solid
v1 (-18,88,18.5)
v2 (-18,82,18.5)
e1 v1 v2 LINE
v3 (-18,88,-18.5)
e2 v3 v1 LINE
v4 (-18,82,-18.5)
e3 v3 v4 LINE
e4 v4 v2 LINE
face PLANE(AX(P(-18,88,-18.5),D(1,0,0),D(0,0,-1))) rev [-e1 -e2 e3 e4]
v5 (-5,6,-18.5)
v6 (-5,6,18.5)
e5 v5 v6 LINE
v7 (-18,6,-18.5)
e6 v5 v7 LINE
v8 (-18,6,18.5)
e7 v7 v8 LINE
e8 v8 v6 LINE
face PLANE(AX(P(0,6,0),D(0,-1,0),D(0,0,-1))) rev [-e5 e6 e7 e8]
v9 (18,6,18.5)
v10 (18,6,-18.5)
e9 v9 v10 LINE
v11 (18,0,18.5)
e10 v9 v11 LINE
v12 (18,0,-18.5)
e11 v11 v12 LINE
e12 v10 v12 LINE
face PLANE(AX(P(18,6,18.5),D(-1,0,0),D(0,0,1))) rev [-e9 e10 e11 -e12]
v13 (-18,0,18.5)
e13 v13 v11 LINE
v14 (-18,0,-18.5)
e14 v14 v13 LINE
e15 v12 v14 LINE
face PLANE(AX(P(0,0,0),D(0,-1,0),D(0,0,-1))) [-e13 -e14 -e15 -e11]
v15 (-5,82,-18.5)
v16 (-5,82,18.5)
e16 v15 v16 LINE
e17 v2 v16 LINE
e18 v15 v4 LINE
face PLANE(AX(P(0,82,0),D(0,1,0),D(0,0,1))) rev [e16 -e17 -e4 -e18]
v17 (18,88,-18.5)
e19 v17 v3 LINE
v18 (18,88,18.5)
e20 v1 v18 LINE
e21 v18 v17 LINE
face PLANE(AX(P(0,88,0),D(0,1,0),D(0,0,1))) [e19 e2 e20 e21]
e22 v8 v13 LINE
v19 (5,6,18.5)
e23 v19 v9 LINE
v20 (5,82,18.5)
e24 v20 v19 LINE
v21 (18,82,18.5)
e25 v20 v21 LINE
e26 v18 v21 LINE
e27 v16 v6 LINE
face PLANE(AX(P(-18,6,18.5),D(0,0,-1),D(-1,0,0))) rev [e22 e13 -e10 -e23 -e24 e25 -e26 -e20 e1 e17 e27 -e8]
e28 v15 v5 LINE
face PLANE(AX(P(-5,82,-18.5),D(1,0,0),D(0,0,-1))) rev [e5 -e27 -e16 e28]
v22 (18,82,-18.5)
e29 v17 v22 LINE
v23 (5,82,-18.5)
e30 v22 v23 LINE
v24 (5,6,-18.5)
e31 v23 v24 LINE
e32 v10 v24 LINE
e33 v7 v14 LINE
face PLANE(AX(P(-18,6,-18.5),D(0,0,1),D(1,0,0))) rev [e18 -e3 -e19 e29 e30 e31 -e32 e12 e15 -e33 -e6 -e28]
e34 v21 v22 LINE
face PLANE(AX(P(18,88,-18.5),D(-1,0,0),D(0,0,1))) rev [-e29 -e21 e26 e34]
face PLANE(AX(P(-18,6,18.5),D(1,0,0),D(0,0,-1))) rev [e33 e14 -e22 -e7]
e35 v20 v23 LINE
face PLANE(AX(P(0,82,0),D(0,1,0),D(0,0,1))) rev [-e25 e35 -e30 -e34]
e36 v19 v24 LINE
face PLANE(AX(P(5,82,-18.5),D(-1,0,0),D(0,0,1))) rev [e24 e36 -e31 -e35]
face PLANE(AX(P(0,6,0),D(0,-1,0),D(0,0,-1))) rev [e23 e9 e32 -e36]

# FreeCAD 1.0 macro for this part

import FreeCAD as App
import Part
import Sketcher

V = App.Vector

doc = App.newDocument("Part")
body = doc.addObject("PartDesign::Body", "Body")

sketch1 = body.newObject("Sketcher::SketchObject", "Sketch")
sketch1.AttachmentSupport = (doc.getObject("XZ_Plane"), [""])
sketch1.MapMode = "FlatFace"
sketch1.addGeometry([
    Part.LineSegment(V(-18, -18.5, 0), V(-18, 18.5, 0)),
    Part.LineSegment(V(-18, 18.5, 0), V(18, 18.5, 0)),
    Part.LineSegment(V(18, 18.5, 0), V(18, -18.5, 0)),
    Part.LineSegment(V(18, -18.5, 0), V(-18, -18.5, 0)),
], False)
sketch1.addConstraint([
    Sketcher.Constraint("Coincident", 0, 2, 1, 1),
    Sketcher.Constraint("Coincident", 1, 2, 2, 1),
    Sketcher.Constraint("Coincident", 2, 2, 3, 1),
    Sketcher.Constraint("Coincident", 3, 2, 0, 1),
    Sketcher.Constraint("Vertical", 0),
    Sketcher.Constraint("Horizontal", 1),
    Sketcher.Constraint("Vertical", 2),
    Sketcher.Constraint("Horizontal", 3),
    Sketcher.Constraint("Symmetric", 0, 2, 2, 2, -1, 1),
    Sketcher.Constraint("DistanceX", 1, 1, 1, 2, 36.0),
    Sketcher.Constraint("DistanceY", 0, 1, 0, 2, 37.0),
])
pad1 = body.newObject("PartDesign::Pad", "Pad")
pad1.Profile = sketch1
pad1.Length = 6
pad1.Reversed = True

sketch2 = body.newObject("Sketcher::SketchObject", "Sketch001")
sketch2.AttachmentSupport = (doc.getObject("XZ_Plane"), [""])
sketch2.MapMode = "FlatFace"
sketch2.AttachmentOffset = App.Placement(V(0, 0, -6), App.Rotation())
sketch2.addGeometry([
    Part.LineSegment(V(-5, -18.5, 0), V(-5, 18.5, 0)),
    Part.LineSegment(V(-5, 18.5, 0), V(5, 18.5, 0)),
    Part.LineSegment(V(5, 18.5, 0), V(5, -18.5, 0)),
    Part.LineSegment(V(5, -18.5, 0), V(-5, -18.5, 0)),
], False)
sketch2.addConstraint([
    Sketcher.Constraint("Coincident", 0, 2, 1, 1),
    Sketcher.Constraint("Coincident", 1, 2, 2, 1),
    Sketcher.Constraint("Coincident", 2, 2, 3, 1),
    Sketcher.Constraint("Coincident", 3, 2, 0, 1),
    Sketcher.Constraint("Vertical", 0),
    Sketcher.Constraint("Horizontal", 1),
    Sketcher.Constraint("Vertical", 2),
    Sketcher.Constraint("Horizontal", 3),
    Sketcher.Constraint("Symmetric", 0, 2, 2, 2, -1, 1),
    Sketcher.Constraint("DistanceX", 1, 1, 1, 2, 10.0),
    Sketcher.Constraint("DistanceY", 0, 1, 0, 2, 37.0),
])
pad2 = body.newObject("PartDesign::Pad", "Pad001")
pad2.Profile = sketch2
pad2.Length = 76
pad2.Reversed = True

sketch3 = body.newObject("Sketcher::SketchObject", "Sketch002")
sketch3.AttachmentSupport = (doc.getObject("XZ_Plane"), [""])
sketch3.MapMode = "FlatFace"
sketch3.AttachmentOffset = App.Placement(V(0, 0, -82), App.Rotation())
sketch3.addGeometry([
    Part.LineSegment(V(-18, -18.5, 0), V(-18, 18.5, 0)),
    Part.LineSegment(V(-18, 18.5, 0), V(18, 18.5, 0)),
    Part.LineSegment(V(18, 18.5, 0), V(18, -18.5, 0)),
    Part.LineSegment(V(18, -18.5, 0), V(-18, -18.5, 0)),
], False)
sketch3.addConstraint([
    Sketcher.Constraint("Coincident", 0, 2, 1, 1),
    Sketcher.Constraint("Coincident", 1, 2, 2, 1),
    Sketcher.Constraint("Coincident", 2, 2, 3, 1),
    Sketcher.Constraint("Coincident", 3, 2, 0, 1),
    Sketcher.Constraint("Vertical", 0),
    Sketcher.Constraint("Horizontal", 1),
    Sketcher.Constraint("Vertical", 2),
    Sketcher.Constraint("Horizontal", 3),
    Sketcher.Constraint("Symmetric", 0, 2, 2, 2, -1, 1),
    Sketcher.Constraint("DistanceX", 1, 1, 1, 2, 36.0),
    Sketcher.Constraint("DistanceY", 0, 1, 0, 2, 37.0),
])
pad3 = body.newObject("PartDesign::Pad", "Pad002")
pad3.Profile = sketch3
pad3.Length = 6
pad3.Reversed = True

doc.recompute()
